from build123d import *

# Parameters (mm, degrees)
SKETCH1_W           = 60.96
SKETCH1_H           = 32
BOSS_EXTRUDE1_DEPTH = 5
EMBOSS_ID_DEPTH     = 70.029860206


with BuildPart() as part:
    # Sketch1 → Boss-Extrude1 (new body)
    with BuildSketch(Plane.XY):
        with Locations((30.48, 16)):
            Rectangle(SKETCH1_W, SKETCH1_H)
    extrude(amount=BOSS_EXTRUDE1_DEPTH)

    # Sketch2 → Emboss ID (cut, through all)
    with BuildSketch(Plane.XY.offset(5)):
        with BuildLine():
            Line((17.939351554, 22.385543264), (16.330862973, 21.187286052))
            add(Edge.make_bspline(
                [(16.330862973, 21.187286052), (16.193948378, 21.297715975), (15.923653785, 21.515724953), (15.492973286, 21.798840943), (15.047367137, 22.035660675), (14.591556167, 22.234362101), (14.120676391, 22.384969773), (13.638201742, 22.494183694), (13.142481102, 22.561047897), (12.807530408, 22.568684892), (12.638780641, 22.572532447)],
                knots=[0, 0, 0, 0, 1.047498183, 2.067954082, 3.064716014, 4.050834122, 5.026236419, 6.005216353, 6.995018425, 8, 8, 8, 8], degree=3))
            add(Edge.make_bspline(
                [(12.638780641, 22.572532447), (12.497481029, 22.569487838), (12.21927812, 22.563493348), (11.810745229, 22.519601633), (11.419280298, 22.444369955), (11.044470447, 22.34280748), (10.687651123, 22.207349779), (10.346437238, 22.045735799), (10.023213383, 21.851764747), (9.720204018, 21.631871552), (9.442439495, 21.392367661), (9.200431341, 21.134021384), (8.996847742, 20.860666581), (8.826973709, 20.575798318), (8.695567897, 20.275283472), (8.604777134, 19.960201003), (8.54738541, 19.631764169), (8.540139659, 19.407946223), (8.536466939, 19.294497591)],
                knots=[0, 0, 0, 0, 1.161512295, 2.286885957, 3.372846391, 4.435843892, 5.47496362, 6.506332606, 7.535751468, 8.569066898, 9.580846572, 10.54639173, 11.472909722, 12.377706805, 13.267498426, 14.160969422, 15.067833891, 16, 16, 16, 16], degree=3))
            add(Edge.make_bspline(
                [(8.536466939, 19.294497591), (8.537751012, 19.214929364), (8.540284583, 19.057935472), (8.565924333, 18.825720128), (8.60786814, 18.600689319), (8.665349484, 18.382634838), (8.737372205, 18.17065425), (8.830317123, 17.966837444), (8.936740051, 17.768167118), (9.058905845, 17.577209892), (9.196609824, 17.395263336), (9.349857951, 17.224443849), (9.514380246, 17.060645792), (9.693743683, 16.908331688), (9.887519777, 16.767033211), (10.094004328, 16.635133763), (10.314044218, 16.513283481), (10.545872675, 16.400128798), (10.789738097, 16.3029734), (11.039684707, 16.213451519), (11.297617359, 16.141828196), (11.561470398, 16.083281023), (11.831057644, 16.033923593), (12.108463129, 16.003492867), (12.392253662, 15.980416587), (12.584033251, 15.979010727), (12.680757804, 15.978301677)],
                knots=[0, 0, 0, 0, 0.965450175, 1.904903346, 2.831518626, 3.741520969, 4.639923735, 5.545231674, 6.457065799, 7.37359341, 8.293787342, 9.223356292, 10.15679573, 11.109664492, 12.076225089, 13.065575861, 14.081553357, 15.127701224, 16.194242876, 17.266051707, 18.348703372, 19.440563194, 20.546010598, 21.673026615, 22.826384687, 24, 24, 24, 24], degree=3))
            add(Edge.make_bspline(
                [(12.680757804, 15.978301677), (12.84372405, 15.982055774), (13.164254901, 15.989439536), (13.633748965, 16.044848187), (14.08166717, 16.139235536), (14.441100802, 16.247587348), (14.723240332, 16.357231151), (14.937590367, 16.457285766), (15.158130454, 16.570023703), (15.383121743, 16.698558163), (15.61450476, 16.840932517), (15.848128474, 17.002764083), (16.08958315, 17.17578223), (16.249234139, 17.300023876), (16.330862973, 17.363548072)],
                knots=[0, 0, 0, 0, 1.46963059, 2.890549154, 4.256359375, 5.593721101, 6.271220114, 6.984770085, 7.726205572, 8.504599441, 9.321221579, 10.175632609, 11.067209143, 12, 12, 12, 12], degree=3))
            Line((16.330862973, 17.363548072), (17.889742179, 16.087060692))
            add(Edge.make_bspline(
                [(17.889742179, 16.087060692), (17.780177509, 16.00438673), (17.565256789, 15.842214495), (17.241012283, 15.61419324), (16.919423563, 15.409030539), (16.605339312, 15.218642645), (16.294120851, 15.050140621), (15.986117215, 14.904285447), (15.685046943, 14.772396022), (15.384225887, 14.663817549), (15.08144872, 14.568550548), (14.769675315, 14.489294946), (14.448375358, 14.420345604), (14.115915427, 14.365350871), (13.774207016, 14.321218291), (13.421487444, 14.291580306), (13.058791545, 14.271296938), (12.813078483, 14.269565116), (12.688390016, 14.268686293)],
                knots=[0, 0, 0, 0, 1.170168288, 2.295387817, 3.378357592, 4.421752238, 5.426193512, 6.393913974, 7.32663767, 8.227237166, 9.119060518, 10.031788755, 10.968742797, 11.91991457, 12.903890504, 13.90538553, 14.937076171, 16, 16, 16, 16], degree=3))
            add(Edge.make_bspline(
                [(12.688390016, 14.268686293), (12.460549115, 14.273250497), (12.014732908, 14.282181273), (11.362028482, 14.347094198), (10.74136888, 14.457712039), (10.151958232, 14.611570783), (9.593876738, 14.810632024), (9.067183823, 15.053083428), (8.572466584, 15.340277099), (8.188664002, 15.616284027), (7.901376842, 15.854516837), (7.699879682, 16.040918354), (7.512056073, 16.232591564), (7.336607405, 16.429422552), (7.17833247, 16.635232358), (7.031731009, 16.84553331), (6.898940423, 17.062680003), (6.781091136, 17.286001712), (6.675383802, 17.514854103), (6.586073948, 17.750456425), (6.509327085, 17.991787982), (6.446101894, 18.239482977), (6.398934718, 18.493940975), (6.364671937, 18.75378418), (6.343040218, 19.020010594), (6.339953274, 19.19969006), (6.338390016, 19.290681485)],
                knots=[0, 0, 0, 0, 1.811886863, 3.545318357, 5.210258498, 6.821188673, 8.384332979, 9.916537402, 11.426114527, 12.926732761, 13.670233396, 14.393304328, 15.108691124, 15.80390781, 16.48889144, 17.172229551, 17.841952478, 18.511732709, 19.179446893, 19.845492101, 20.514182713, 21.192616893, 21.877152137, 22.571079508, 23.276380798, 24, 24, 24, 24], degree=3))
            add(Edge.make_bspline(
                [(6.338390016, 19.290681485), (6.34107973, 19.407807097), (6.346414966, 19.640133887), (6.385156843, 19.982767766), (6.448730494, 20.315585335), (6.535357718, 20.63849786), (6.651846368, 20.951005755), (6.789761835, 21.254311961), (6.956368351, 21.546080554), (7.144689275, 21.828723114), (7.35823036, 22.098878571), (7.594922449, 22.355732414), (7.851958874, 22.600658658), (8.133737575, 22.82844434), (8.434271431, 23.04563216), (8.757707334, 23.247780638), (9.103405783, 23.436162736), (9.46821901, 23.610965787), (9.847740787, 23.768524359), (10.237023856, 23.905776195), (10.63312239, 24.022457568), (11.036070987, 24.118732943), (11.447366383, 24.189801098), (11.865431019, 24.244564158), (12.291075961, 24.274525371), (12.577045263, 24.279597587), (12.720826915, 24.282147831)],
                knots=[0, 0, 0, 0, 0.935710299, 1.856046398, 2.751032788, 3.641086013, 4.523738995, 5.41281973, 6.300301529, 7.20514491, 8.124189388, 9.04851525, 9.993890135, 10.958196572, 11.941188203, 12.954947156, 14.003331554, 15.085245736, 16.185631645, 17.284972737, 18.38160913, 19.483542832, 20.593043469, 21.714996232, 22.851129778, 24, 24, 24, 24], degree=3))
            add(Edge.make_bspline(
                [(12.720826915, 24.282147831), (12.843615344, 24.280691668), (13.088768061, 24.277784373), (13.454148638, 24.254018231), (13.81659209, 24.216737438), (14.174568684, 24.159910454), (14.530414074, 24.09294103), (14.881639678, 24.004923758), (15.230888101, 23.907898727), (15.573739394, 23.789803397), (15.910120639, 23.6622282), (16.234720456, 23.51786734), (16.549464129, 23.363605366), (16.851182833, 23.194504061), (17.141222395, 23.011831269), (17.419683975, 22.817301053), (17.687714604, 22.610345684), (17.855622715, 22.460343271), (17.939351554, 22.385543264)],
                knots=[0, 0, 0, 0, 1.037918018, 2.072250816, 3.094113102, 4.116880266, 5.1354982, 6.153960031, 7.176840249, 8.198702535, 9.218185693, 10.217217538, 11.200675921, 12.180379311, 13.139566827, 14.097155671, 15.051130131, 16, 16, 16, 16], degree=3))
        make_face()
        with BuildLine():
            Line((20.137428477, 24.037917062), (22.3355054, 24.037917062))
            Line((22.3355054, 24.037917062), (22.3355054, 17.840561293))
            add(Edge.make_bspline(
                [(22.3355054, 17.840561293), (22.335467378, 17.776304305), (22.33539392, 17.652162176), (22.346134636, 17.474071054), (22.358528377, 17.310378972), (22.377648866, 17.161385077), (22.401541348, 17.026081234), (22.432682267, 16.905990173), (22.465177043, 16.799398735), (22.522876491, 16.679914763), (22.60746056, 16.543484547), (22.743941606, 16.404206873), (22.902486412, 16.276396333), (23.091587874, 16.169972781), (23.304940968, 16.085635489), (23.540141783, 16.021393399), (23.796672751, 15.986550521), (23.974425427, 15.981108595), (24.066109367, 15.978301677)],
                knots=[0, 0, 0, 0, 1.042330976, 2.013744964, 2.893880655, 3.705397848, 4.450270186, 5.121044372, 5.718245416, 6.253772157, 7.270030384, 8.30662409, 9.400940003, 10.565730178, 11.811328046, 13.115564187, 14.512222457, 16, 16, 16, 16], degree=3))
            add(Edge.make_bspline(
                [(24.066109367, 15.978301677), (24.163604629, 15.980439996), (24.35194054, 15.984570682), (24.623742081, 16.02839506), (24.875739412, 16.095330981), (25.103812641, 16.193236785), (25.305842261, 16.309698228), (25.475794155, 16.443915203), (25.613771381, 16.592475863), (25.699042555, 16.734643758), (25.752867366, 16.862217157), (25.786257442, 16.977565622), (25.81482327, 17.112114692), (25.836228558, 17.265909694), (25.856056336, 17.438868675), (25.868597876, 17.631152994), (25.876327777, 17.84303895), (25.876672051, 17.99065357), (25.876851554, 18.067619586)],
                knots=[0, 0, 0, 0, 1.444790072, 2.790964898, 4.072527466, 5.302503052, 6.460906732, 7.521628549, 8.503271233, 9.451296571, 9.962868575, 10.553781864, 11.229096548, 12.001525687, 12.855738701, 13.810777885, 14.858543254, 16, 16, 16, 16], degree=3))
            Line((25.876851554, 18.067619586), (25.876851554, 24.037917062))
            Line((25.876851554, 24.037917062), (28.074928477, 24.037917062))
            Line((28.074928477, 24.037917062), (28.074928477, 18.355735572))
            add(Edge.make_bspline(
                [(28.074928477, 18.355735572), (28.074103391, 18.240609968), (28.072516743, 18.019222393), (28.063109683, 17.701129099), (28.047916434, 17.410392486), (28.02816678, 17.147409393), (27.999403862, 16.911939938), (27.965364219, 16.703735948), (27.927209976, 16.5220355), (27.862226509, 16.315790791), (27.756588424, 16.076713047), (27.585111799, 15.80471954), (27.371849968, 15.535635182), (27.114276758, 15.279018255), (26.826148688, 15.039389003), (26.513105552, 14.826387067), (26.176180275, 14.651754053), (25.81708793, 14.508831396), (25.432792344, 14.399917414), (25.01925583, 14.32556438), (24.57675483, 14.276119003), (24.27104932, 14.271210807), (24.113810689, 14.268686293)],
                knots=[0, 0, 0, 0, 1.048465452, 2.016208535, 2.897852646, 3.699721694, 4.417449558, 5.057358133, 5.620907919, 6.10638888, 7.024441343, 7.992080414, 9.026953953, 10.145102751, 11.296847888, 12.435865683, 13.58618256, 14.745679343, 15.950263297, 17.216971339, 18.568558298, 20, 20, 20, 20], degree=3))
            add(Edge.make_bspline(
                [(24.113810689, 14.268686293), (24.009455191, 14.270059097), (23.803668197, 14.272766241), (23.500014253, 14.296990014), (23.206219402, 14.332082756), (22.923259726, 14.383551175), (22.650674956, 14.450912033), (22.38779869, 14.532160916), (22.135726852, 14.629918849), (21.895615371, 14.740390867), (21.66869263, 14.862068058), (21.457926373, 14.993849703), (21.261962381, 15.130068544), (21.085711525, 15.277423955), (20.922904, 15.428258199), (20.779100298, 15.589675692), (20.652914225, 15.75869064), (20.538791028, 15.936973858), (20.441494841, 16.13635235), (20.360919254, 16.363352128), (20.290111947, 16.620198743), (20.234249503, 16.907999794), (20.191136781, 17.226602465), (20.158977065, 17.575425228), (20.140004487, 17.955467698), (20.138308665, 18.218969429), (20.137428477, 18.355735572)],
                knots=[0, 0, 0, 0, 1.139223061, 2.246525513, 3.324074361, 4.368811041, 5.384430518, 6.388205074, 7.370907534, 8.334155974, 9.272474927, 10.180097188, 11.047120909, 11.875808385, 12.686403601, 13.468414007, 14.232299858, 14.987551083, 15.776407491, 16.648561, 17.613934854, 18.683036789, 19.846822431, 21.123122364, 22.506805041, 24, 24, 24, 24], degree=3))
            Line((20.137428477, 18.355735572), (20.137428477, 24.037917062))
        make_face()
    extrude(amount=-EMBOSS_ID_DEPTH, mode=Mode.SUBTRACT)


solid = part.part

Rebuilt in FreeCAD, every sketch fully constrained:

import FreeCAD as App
import Part
import Sketcher


def add_polygon(sketch, points):
    """Adds a closed chain of lines whose ends are joined by coincident constraints."""
    first, n = sketch.GeometryCount, len(points)
    for a, b in zip(points, points[1:] + points[:1]):
        sketch.addGeometry(Part.LineSegment(App.Vector(*a, 0), App.Vector(*b, 0)), False)
    for i in range(n):
        sketch.addConstraint(Sketcher.Constraint("Coincident", first + i, 2, first + (i + 1) % n, 1))

doc = App.newDocument("Part")
params = doc.addObject("Spreadsheet::Sheet", "Params")
for row, (alias, value) in enumerate([
    ("sketch1_height", "32 mm"),
    ("sketch1_width", "60.96 mm"),
    ("pad1_length", "5 mm"),
], start=1):
    params.set(f"A{row}", alias)
    params.set(f"B{row}", "=" + value)
    params.setAlias(f"B{row}", alias)

body = doc.addObject("PartDesign::Body", "Body")

sketch1 = body.newObject("Sketcher::SketchObject", "Sketch")
sketch1.AttachmentSupport = (doc.getObject("XY_Plane"), [""])
sketch1.MapMode = "FlatFace"
add_polygon(sketch1, [(0, 32), (0, 0), (61, 0), (61, 32)])
sketch1.addConstraint(Sketcher.Constraint("Vertical", 0))
sketch1.addConstraint(Sketcher.Constraint("Horizontal", 1))
sketch1.addConstraint(Sketcher.Constraint("Vertical", 2))
sketch1.addConstraint(Sketcher.Constraint("Horizontal", 3))
sketch1.addConstraint(Sketcher.Constraint("Coincident", 0, 2, -1, 1))
sketch1.addConstraint(Sketcher.Constraint("DistanceY", 0, 2, 0, 1, 32.0))
sketch1.addConstraint(Sketcher.Constraint("DistanceX", 1, 1, 1, 2, 60.96))
sketch1.setExpression("Constraints[9]", "Params.sketch1_height")
sketch1.setExpression("Constraints[10]", "Params.sketch1_width")
pad1 = body.newObject("PartDesign::Pad", "Pad")
pad1.Profile = sketch1
pad1.setExpression("Length", "Params.pad1_length")

sketch2 = body.newObject("Sketcher::SketchObject", "Sketch001")
sketch2.AttachmentSupport = (doc.getObject("XY_Plane"), [""])
sketch2.MapMode = "FlatFace"
sketch2.AttachmentOffset = App.Placement(App.Vector(0, 0, 5), App.Rotation())
sketch2.addGeometry(Part.LineSegment(App.Vector(16.330863, 21.187286, 0), App.Vector(17.939352, 22.385543, 0)), False)
sketch2.addGeometry(Part.BSplineCurve([App.Vector(12.720827, 24.282148, 0), App.Vector(12.843615, 24.280692, 0), App.Vector(13.088768, 24.277784, 0), App.Vector(13.454149, 24.254018, 0), App.Vector(13.816592, 24.216737, 0), App.Vector(14.174569, 24.15991, 0), App.Vector(14.530414, 24.092941, 0), App.Vector(14.88164, 24.004924, 0), App.Vector(15.230888, 23.907899, 0), App.Vector(15.573739, 23.789803, 0), App.Vector(15.910121, 23.662228, 0), App.Vector(16.23472, 23.517867, 0), App.Vector(16.549464, 23.363605, 0), App.Vector(16.851183, 23.194504, 0), App.Vector(17.141222, 23.011831, 0), App.Vector(17.419684, 22.817301, 0), App.Vector(17.687715, 22.610346, 0), App.Vector(17.855623, 22.460343, 0), App.Vector(17.939352, 22.385543, 0)], [4, 1, 1, 1, 1, 1, 1, 1, 1, 1, 1, 1, 1, 1, 1, 1, 4], [0, 1.037918018, 2.072250816, 3.094113102, 4.116880266, 5.1354982, 6.153960031, 7.176840249, 8.198702535, 9.218185693, 10.217217538, 11.200675921, 12.180379311, 13.139566827, 14.097155671, 15.051130131, 16], False, 3, [1, 1, 1, 1, 1, 1, 1, 1, 1, 1, 1, 1, 1, 1, 1, 1, 1, 1, 1], False), False)
sketch2.addGeometry(Part.BSplineCurve([App.Vector(6.33839, 19.290681, 0), App.Vector(6.34108, 19.407807, 0), App.Vector(6.346415, 19.640134, 0), App.Vector(6.385157, 19.982768, 0), App.Vector(6.44873, 20.315585, 0), App.Vector(6.535358, 20.638498, 0), App.Vector(6.651846, 20.951006, 0), App.Vector(6.789762, 21.254312, 0), App.Vector(6.956368, 21.546081, 0), App.Vector(7.144689, 21.828723, 0), App.Vector(7.35823, 22.098879, 0), App.Vector(7.594922, 22.355732, 0), App.Vector(7.851959, 22.600659, 0), App.Vector(8.133738, 22.828444, 0), App.Vector(8.434271, 23.045632, 0), App.Vector(8.757707, 23.247781, 0), App.Vector(9.103406, 23.436163, 0), App.Vector(9.468219, 23.610966, 0), App.Vector(9.847741, 23.768524, 0), App.Vector(10.237024, 23.905776, 0), App.Vector(10.633122, 24.022458, 0), App.Vector(11.036071, 24.118733, 0), App.Vector(11.447366, 24.189801, 0), App.Vector(11.865431, 24.244564, 0), App.Vector(12.291076, 24.274525, 0), App.Vector(12.577045, 24.279598, 0), App.Vector(12.720827, 24.282148, 0)], [4, 1, 1, 1, 1, 1, 1, 1, 1, 1, 1, 1, 1, 1, 1, 1, 1, 1, 1, 1, 1, 1, 1, 1, 4], [0, 0.935710299, 1.856046398, 2.751032788, 3.641086013, 4.523738995, 5.41281973, 6.300301529, 7.20514491, 8.124189388, 9.04851525, 9.993890135, 10.958196572, 11.941188203, 12.954947156, 14.003331554, 15.085245736, 16.185631645, 17.284972737, 18.38160913, 19.483542832, 20.593043469, 21.714996232, 22.851129778, 24], False, 3, [1, 1, 1, 1, 1, 1, 1, 1, 1, 1, 1, 1, 1, 1, 1, 1, 1, 1, 1, 1, 1, 1, 1, 1, 1, 1, 1], False), False)
sketch2.addGeometry(Part.BSplineCurve([App.Vector(12.68839, 14.268686, 0), App.Vector(12.460549, 14.27325, 0), App.Vector(12.014733, 14.282181, 0), App.Vector(11.362028, 14.347094, 0), App.Vector(10.741369, 14.457712, 0), App.Vector(10.151958, 14.611571, 0), App.Vector(9.593877, 14.810632, 0), App.Vector(9.067184, 15.053083, 0), App.Vector(8.572467, 15.340277, 0), App.Vector(8.188664, 15.616284, 0), App.Vector(7.901377, 15.854517, 0), App.Vector(7.69988, 16.040918, 0), App.Vector(7.512056, 16.232592, 0), App.Vector(7.336607, 16.429423, 0), App.Vector(7.178332, 16.635232, 0), App.Vector(7.031731, 16.845533, 0), App.Vector(6.89894, 17.06268, 0), App.Vector(6.781091, 17.286002, 0), App.Vector(6.675384, 17.514854, 0), App.Vector(6.586074, 17.750456, 0), App.Vector(6.509327, 17.991788, 0), App.Vector(6.446102, 18.239483, 0), App.Vector(6.398935, 18.493941, 0), App.Vector(6.364672, 18.753784, 0), App.Vector(6.34304, 19.020011, 0), App.Vector(6.339953, 19.19969, 0), App.Vector(6.33839, 19.290681, 0)], [4, 1, 1, 1, 1, 1, 1, 1, 1, 1, 1, 1, 1, 1, 1, 1, 1, 1, 1, 1, 1, 1, 1, 1, 4], [0, 1.811886863, 3.545318357, 5.210258498, 6.821188673, 8.384332979, 9.916537402, 11.426114527, 12.926732761, 13.670233396, 14.393304328, 15.108691124, 15.80390781, 16.48889144, 17.172229551, 17.841952478, 18.511732709, 19.179446893, 19.845492101, 20.514182713, 21.192616893, 21.877152137, 22.571079508, 23.276380798, 24], False, 3, [1, 1, 1, 1, 1, 1, 1, 1, 1, 1, 1, 1, 1, 1, 1, 1, 1, 1, 1, 1, 1, 1, 1, 1, 1, 1, 1], False), False)
sketch2.addGeometry(Part.BSplineCurve([App.Vector(17.889742, 16.087061, 0), App.Vector(17.780178, 16.004387, 0), App.Vector(17.565257, 15.842214, 0), App.Vector(17.241012, 15.614193, 0), App.Vector(16.919424, 15.409031, 0), App.Vector(16.605339, 15.218643, 0), App.Vector(16.294121, 15.050141, 0), App.Vector(15.986117, 14.904285, 0), App.Vector(15.685047, 14.772396, 0), App.Vector(15.384226, 14.663818, 0), App.Vector(15.081449, 14.568551, 0), App.Vector(14.769675, 14.489295, 0), App.Vector(14.448375, 14.420346, 0), App.Vector(14.115915, 14.365351, 0), App.Vector(13.774207, 14.321218, 0), App.Vector(13.421487, 14.29158, 0), App.Vector(13.058792, 14.271297, 0), App.Vector(12.813078, 14.269565, 0), App.Vector(12.68839, 14.268686, 0)], [4, 1, 1, 1, 1, 1, 1, 1, 1, 1, 1, 1, 1, 1, 1, 1, 4], [0, 1.170168288, 2.295387817, 3.378357592, 4.421752238, 5.426193512, 6.393913974, 7.32663767, 8.227237166, 9.119060518, 10.031788755, 10.968742797, 11.91991457, 12.903890504, 13.90538553, 14.937076171, 16], False, 3, [1, 1, 1, 1, 1, 1, 1, 1, 1, 1, 1, 1, 1, 1, 1, 1, 1, 1, 1], False), False)
sketch2.addGeometry(Part.LineSegment(App.Vector(17.889742, 16.087061, 0), App.Vector(16.330863, 17.363548, 0)), False)
sketch2.addGeometry(Part.BSplineCurve([App.Vector(12.680758, 15.978302, 0), App.Vector(12.843724, 15.982056, 0), App.Vector(13.164255, 15.98944, 0), App.Vector(13.633749, 16.044848, 0), App.Vector(14.081667, 16.139236, 0), App.Vector(14.441101, 16.247587, 0), App.Vector(14.72324, 16.357231, 0), App.Vector(14.93759, 16.457286, 0), App.Vector(15.15813, 16.570024, 0), App.Vector(15.383122, 16.698558, 0), App.Vector(15.614505, 16.840933, 0), App.Vector(15.848128, 17.002764, 0), App.Vector(16.089583, 17.175782, 0), App.Vector(16.249234, 17.300024, 0), App.Vector(16.330863, 17.363548, 0)], [4, 1, 1, 1, 1, 1, 1, 1, 1, 1, 1, 1, 4], [0, 1.46963059, 2.890549154, 4.256359375, 5.593721101, 6.271220114, 6.984770085, 7.726205572, 8.504599441, 9.321221579, 10.175632609, 11.067209143, 12], False, 3, [1, 1, 1, 1, 1, 1, 1, 1, 1, 1, 1, 1, 1, 1, 1], False), False)
sketch2.addGeometry(Part.BSplineCurve([App.Vector(8.536467, 19.294498, 0), App.Vector(8.537751, 19.214929, 0), App.Vector(8.540285, 19.057935, 0), App.Vector(8.565924, 18.82572, 0), App.Vector(8.607868, 18.600689, 0), App.Vector(8.665349, 18.382635, 0), App.Vector(8.737372, 18.170654, 0), App.Vector(8.830317, 17.966837, 0), App.Vector(8.93674, 17.768167, 0), App.Vector(9.058906, 17.57721, 0), App.Vector(9.19661, 17.395263, 0), App.Vector(9.349858, 17.224444, 0), App.Vector(9.51438, 17.060646, 0), App.Vector(9.693744, 16.908332, 0), App.Vector(9.88752, 16.767033, 0), App.Vector(10.094004, 16.635134, 0), App.Vector(10.314044, 16.513283, 0), App.Vector(10.545873, 16.400129, 0), App.Vector(10.789738, 16.302973, 0), App.Vector(11.039685, 16.213452, 0), App.Vector(11.297617, 16.141828, 0), App.Vector(11.56147, 16.083281, 0), App.Vector(11.831058, 16.033924, 0), App.Vector(12.108463, 16.003493, 0), App.Vector(12.392254, 15.980417, 0), App.Vector(12.584033, 15.979011, 0), App.Vector(12.680758, 15.978302, 0)], [4, 1, 1, 1, 1, 1, 1, 1, 1, 1, 1, 1, 1, 1, 1, 1, 1, 1, 1, 1, 1, 1, 1, 1, 4], [0, 0.965450175, 1.904903346, 2.831518626, 3.741520969, 4.639923735, 5.545231674, 6.457065799, 7.37359341, 8.293787342, 9.223356292, 10.15679573, 11.109664492, 12.076225089, 13.065575861, 14.081553357, 15.127701224, 16.194242876, 17.266051707, 18.348703372, 19.440563194, 20.546010598, 21.673026615, 22.826384687, 24], False, 3, [1, 1, 1, 1, 1, 1, 1, 1, 1, 1, 1, 1, 1, 1, 1, 1, 1, 1, 1, 1, 1, 1, 1, 1, 1, 1, 1], False), False)
sketch2.addGeometry(Part.BSplineCurve([App.Vector(12.638781, 22.572532, 0), App.Vector(12.497481, 22.569488, 0), App.Vector(12.219278, 22.563493, 0), App.Vector(11.810745, 22.519602, 0), App.Vector(11.41928, 22.44437, 0), App.Vector(11.04447, 22.342807, 0), App.Vector(10.687651, 22.20735, 0), App.Vector(10.346437, 22.045736, 0), App.Vector(10.023213, 21.851765, 0), App.Vector(9.720204, 21.631872, 0), App.Vector(9.442439, 21.392368, 0), App.Vector(9.200431, 21.134021, 0), App.Vector(8.996848, 20.860667, 0), App.Vector(8.826974, 20.575798, 0), App.Vector(8.695568, 20.275283, 0), App.Vector(8.604777, 19.960201, 0), App.Vector(8.547385, 19.631764, 0), App.Vector(8.54014, 19.407946, 0), App.Vector(8.536467, 19.294498, 0)], [4, 1, 1, 1, 1, 1, 1, 1, 1, 1, 1, 1, 1, 1, 1, 1, 4], [0, 1.161512295, 2.286885957, 3.372846391, 4.435843892, 5.47496362, 6.506332606, 7.535751468, 8.569066898, 9.580846572, 10.54639173, 11.472909722, 12.377706805, 13.267498426, 14.160969422, 15.067833891, 16], False, 3, [1, 1, 1, 1, 1, 1, 1, 1, 1, 1, 1, 1, 1, 1, 1, 1, 1, 1, 1], False), False)
sketch2.addGeometry(Part.BSplineCurve([App.Vector(16.330863, 21.187286, 0), App.Vector(16.193948, 21.297716, 0), App.Vector(15.923654, 21.515725, 0), App.Vector(15.492973, 21.798841, 0), App.Vector(15.047367, 22.035661, 0), App.Vector(14.591556, 22.234362, 0), App.Vector(14.120676, 22.38497, 0), App.Vector(13.638202, 22.494184, 0), App.Vector(13.142481, 22.561048, 0), App.Vector(12.80753, 22.568685, 0), App.Vector(12.638781, 22.572532, 0)], [4, 1, 1, 1, 1, 1, 1, 1, 4], [0, 1.047498183, 2.067954082, 3.064716014, 4.050834122, 5.026236419, 6.005216353, 6.995018425, 8], False, 3, [1, 1, 1, 1, 1, 1, 1, 1, 1, 1, 1], False), False)
sketch2.addGeometry(Part.LineSegment(App.Vector(22.335505, 24.037917, 0), App.Vector(20.137428, 24.037917, 0)), False)
sketch2.addGeometry(Part.LineSegment(App.Vector(20.137428, 24.037917, 0), App.Vector(20.137428, 18.355736, 0)), False)
sketch2.addGeometry(Part.BSplineCurve([App.Vector(24.113811, 14.268686, 0), App.Vector(24.009455, 14.270059, 0), App.Vector(23.803668, 14.272766, 0), App.Vector(23.500014, 14.29699, 0), App.Vector(23.206219, 14.332083, 0), App.Vector(22.92326, 14.383551, 0), App.Vector(22.650675, 14.450912, 0), App.Vector(22.387799, 14.532161, 0), App.Vector(22.135727, 14.629919, 0), App.Vector(21.895615, 14.740391, 0), App.Vector(21.668693, 14.862068, 0), App.Vector(21.457926, 14.99385, 0), App.Vector(21.261962, 15.130069, 0), App.Vector(21.085712, 15.277424, 0), App.Vector(20.922904, 15.428258, 0), App.Vector(20.7791, 15.589676, 0), App.Vector(20.652914, 15.758691, 0), App.Vector(20.538791, 15.936974, 0), App.Vector(20.441495, 16.136352, 0), App.Vector(20.360919, 16.363352, 0), App.Vector(20.290112, 16.620199, 0), App.Vector(20.23425, 16.908, 0), App.Vector(20.191137, 17.226602, 0), App.Vector(20.158977, 17.575425, 0), App.Vector(20.140004, 17.955468, 0), App.Vector(20.138309, 18.218969, 0), App.Vector(20.137428, 18.355736, 0)], [4, 1, 1, 1, 1, 1, 1, 1, 1, 1, 1, 1, 1, 1, 1, 1, 1, 1, 1, 1, 1, 1, 1, 1, 4], [0, 1.139223061, 2.246525513, 3.324074361, 4.368811041, 5.384430518, 6.388205074, 7.370907534, 8.334155974, 9.272474927, 10.180097188, 11.047120909, 11.875808385, 12.686403601, 13.468414007, 14.232299858, 14.987551083, 15.776407491, 16.648561, 17.613934854, 18.683036789, 19.846822431, 21.123122364, 22.506805041, 24], False, 3, [1, 1, 1, 1, 1, 1, 1, 1, 1, 1, 1, 1, 1, 1, 1, 1, 1, 1, 1, 1, 1, 1, 1, 1, 1, 1, 1], False), False)
sketch2.addGeometry(Part.BSplineCurve([App.Vector(28.074928, 18.355736, 0), App.Vector(28.074103, 18.24061, 0), App.Vector(28.072517, 18.019222, 0), App.Vector(28.06311, 17.701129, 0), App.Vector(28.047916, 17.410392, 0), App.Vector(28.028167, 17.147409, 0), App.Vector(27.999404, 16.91194, 0), App.Vector(27.965364, 16.703736, 0), App.Vector(27.92721, 16.522036, 0), App.Vector(27.862227, 16.315791, 0), App.Vector(27.756588, 16.076713, 0), App.Vector(27.585112, 15.80472, 0), App.Vector(27.37185, 15.535635, 0), App.Vector(27.114277, 15.279018, 0), App.Vector(26.826149, 15.039389, 0), App.Vector(26.513106, 14.826387, 0), App.Vector(26.17618, 14.651754, 0), App.Vector(25.817088, 14.508831, 0), App.Vector(25.432792, 14.399917, 0), App.Vector(25.019256, 14.325564, 0), App.Vector(24.576755, 14.276119, 0), App.Vector(24.271049, 14.271211, 0), App.Vector(24.113811, 14.268686, 0)], [4, 1, 1, 1, 1, 1, 1, 1, 1, 1, 1, 1, 1, 1, 1, 1, 1, 1, 1, 1, 4], [0, 1.048465452, 2.016208535, 2.897852646, 3.699721694, 4.417449558, 5.057358133, 5.620907919, 6.10638888, 7.024441343, 7.992080414, 9.026953953, 10.145102751, 11.296847888, 12.435865683, 13.58618256, 14.745679343, 15.950263297, 17.216971339, 18.568558298, 20], False, 3, [1, 1, 1, 1, 1, 1, 1, 1, 1, 1, 1, 1, 1, 1, 1, 1, 1, 1, 1, 1, 1, 1, 1], False), False)
sketch2.addGeometry(Part.LineSegment(App.Vector(28.074928, 18.355736, 0), App.Vector(28.074928, 24.037917, 0)), False)
sketch2.addGeometry(Part.LineSegment(App.Vector(28.074928, 24.037917, 0), App.Vector(25.876852, 24.037917, 0)), False)
sketch2.addGeometry(Part.LineSegment(App.Vector(25.876852, 24.037917, 0), App.Vector(25.876852, 18.06762, 0)), False)
sketch2.addGeometry(Part.BSplineCurve([App.Vector(24.066109, 15.978302, 0), App.Vector(24.163605, 15.98044, 0), App.Vector(24.351941, 15.984571, 0), App.Vector(24.623742, 16.028395, 0), App.Vector(24.875739, 16.095331, 0), App.Vector(25.103813, 16.193237, 0), App.Vector(25.305842, 16.309698, 0), App.Vector(25.475794, 16.443915, 0), App.Vector(25.613771, 16.592476, 0), App.Vector(25.699043, 16.734644, 0), App.Vector(25.752867, 16.862217, 0), App.Vector(25.786257, 16.977566, 0), App.Vector(25.814823, 17.112115, 0), App.Vector(25.836229, 17.26591, 0), App.Vector(25.856056, 17.438869, 0), App.Vector(25.868598, 17.631153, 0), App.Vector(25.876328, 17.843039, 0), App.Vector(25.876672, 17.990654, 0), App.Vector(25.876852, 18.06762, 0)], [4, 1, 1, 1, 1, 1, 1, 1, 1, 1, 1, 1, 1, 1, 1, 1, 4], [0, 1.444790072, 2.790964898, 4.072527466, 5.302503052, 6.460906732, 7.521628549, 8.503271233, 9.451296571, 9.962868575, 10.553781864, 11.229096548, 12.001525687, 12.855738701, 13.810777885, 14.858543254, 16], False, 3, [1, 1, 1, 1, 1, 1, 1, 1, 1, 1, 1, 1, 1, 1, 1, 1, 1, 1, 1], False), False)
sketch2.addGeometry(Part.BSplineCurve([App.Vector(22.335505, 17.840561, 0), App.Vector(22.335467, 17.776304, 0), App.Vector(22.335394, 17.652162, 0), App.Vector(22.346135, 17.474071, 0), App.Vector(22.358528, 17.310379, 0), App.Vector(22.377649, 17.161385, 0), App.Vector(22.401541, 17.026081, 0), App.Vector(22.432682, 16.90599, 0), App.Vector(22.465177, 16.799399, 0), App.Vector(22.522876, 16.679915, 0), App.Vector(22.607461, 16.543485, 0), App.Vector(22.743942, 16.404207, 0), App.Vector(22.902486, 16.276396, 0), App.Vector(23.091588, 16.169973, 0), App.Vector(23.304941, 16.085635, 0), App.Vector(23.540142, 16.021393, 0), App.Vector(23.796673, 15.986551, 0), App.Vector(23.974425, 15.981109, 0), App.Vector(24.066109, 15.978302, 0)], [4, 1, 1, 1, 1, 1, 1, 1, 1, 1, 1, 1, 1, 1, 1, 1, 4], [0, 1.042330976, 2.013744964, 2.893880655, 3.705397848, 4.450270186, 5.121044372, 5.718245416, 6.253772157, 7.270030384, 8.30662409, 9.400940003, 10.565730178, 11.811328046, 13.115564187, 14.512222457, 16], False, 3, [1, 1, 1, 1, 1, 1, 1, 1, 1, 1, 1, 1, 1, 1, 1, 1, 1, 1, 1], False), False)
sketch2.addGeometry(Part.LineSegment(App.Vector(22.335505, 17.840561, 0), App.Vector(22.335505, 24.037917, 0)), False)
sketch2.addConstraint(Sketcher.Constraint("Block", 1))
sketch2.addConstraint(Sketcher.Constraint("Block", 2))
sketch2.addConstraint(Sketcher.Constraint("Block", 3))
sketch2.addConstraint(Sketcher.Constraint("Block", 4))
sketch2.addConstraint(Sketcher.Constraint("Block", 6))
sketch2.addConstraint(Sketcher.Constraint("Block", 7))
sketch2.addConstraint(Sketcher.Constraint("Block", 8))
sketch2.addConstraint(Sketcher.Constraint("Block", 9))
sketch2.addConstraint(Sketcher.Constraint("Block", 12))
sketch2.addConstraint(Sketcher.Constraint("Block", 13))
sketch2.addConstraint(Sketcher.Constraint("Block", 17))
sketch2.addConstraint(Sketcher.Constraint("Block", 18))
sketch2.addConstraint(Sketcher.Constraint("Coincident", 0, 2, 1, 2))
sketch2.addConstraint(Sketcher.Constraint("Coincident", 4, 1, 5, 1))
sketch2.addConstraint(Sketcher.Constraint("Coincident", 5, 2, 6, 2))
sketch2.addConstraint(Sketcher.Constraint("Coincident", 9, 1, 0, 1))
sketch2.addConstraint(Sketcher.Constraint("Coincident", 10, 2, 11, 1))
sketch2.addConstraint(Sketcher.Constraint("Coincident", 11, 2, 12, 2))
sketch2.addConstraint(Sketcher.Constraint("Coincident", 13, 1, 14, 1))
sketch2.addConstraint(Sketcher.Constraint("Coincident", 14, 2, 15, 1))
sketch2.addConstraint(Sketcher.Constraint("Coincident", 15, 2, 16, 1))
sketch2.addConstraint(Sketcher.Constraint("Coincident", 16, 2, 17, 2))
sketch2.addConstraint(Sketcher.Constraint("Coincident", 18, 1, 19, 1))
sketch2.addConstraint(Sketcher.Constraint("Coincident", 19, 2, 10, 1))
sketch2.addConstraint(Sketcher.Constraint("Horizontal", 10))
sketch2.addConstraint(Sketcher.Constraint("Vertical", 11))
sketch2.addConstraint(Sketcher.Constraint("Vertical", 14))
sketch2.addConstraint(Sketcher.Constraint("Horizontal", 15))
sketch2.addConstraint(Sketcher.Constraint("Vertical", 16))
sketch2.addConstraint(Sketcher.Constraint("Vertical", 19))
sketch2.addConstraint(Sketcher.Constraint("Horizontal", 10, 2, 14, 2))
sketch2.addConstraint(Sketcher.Constraint("DistanceY", 11, 2, 11, 1, 5.682181))
pocket1 = body.newObject("PartDesign::Pocket", "Pocket")
pocket1.Profile = sketch2
pocket1.Type = "ThroughAll"

doc.recompute()
